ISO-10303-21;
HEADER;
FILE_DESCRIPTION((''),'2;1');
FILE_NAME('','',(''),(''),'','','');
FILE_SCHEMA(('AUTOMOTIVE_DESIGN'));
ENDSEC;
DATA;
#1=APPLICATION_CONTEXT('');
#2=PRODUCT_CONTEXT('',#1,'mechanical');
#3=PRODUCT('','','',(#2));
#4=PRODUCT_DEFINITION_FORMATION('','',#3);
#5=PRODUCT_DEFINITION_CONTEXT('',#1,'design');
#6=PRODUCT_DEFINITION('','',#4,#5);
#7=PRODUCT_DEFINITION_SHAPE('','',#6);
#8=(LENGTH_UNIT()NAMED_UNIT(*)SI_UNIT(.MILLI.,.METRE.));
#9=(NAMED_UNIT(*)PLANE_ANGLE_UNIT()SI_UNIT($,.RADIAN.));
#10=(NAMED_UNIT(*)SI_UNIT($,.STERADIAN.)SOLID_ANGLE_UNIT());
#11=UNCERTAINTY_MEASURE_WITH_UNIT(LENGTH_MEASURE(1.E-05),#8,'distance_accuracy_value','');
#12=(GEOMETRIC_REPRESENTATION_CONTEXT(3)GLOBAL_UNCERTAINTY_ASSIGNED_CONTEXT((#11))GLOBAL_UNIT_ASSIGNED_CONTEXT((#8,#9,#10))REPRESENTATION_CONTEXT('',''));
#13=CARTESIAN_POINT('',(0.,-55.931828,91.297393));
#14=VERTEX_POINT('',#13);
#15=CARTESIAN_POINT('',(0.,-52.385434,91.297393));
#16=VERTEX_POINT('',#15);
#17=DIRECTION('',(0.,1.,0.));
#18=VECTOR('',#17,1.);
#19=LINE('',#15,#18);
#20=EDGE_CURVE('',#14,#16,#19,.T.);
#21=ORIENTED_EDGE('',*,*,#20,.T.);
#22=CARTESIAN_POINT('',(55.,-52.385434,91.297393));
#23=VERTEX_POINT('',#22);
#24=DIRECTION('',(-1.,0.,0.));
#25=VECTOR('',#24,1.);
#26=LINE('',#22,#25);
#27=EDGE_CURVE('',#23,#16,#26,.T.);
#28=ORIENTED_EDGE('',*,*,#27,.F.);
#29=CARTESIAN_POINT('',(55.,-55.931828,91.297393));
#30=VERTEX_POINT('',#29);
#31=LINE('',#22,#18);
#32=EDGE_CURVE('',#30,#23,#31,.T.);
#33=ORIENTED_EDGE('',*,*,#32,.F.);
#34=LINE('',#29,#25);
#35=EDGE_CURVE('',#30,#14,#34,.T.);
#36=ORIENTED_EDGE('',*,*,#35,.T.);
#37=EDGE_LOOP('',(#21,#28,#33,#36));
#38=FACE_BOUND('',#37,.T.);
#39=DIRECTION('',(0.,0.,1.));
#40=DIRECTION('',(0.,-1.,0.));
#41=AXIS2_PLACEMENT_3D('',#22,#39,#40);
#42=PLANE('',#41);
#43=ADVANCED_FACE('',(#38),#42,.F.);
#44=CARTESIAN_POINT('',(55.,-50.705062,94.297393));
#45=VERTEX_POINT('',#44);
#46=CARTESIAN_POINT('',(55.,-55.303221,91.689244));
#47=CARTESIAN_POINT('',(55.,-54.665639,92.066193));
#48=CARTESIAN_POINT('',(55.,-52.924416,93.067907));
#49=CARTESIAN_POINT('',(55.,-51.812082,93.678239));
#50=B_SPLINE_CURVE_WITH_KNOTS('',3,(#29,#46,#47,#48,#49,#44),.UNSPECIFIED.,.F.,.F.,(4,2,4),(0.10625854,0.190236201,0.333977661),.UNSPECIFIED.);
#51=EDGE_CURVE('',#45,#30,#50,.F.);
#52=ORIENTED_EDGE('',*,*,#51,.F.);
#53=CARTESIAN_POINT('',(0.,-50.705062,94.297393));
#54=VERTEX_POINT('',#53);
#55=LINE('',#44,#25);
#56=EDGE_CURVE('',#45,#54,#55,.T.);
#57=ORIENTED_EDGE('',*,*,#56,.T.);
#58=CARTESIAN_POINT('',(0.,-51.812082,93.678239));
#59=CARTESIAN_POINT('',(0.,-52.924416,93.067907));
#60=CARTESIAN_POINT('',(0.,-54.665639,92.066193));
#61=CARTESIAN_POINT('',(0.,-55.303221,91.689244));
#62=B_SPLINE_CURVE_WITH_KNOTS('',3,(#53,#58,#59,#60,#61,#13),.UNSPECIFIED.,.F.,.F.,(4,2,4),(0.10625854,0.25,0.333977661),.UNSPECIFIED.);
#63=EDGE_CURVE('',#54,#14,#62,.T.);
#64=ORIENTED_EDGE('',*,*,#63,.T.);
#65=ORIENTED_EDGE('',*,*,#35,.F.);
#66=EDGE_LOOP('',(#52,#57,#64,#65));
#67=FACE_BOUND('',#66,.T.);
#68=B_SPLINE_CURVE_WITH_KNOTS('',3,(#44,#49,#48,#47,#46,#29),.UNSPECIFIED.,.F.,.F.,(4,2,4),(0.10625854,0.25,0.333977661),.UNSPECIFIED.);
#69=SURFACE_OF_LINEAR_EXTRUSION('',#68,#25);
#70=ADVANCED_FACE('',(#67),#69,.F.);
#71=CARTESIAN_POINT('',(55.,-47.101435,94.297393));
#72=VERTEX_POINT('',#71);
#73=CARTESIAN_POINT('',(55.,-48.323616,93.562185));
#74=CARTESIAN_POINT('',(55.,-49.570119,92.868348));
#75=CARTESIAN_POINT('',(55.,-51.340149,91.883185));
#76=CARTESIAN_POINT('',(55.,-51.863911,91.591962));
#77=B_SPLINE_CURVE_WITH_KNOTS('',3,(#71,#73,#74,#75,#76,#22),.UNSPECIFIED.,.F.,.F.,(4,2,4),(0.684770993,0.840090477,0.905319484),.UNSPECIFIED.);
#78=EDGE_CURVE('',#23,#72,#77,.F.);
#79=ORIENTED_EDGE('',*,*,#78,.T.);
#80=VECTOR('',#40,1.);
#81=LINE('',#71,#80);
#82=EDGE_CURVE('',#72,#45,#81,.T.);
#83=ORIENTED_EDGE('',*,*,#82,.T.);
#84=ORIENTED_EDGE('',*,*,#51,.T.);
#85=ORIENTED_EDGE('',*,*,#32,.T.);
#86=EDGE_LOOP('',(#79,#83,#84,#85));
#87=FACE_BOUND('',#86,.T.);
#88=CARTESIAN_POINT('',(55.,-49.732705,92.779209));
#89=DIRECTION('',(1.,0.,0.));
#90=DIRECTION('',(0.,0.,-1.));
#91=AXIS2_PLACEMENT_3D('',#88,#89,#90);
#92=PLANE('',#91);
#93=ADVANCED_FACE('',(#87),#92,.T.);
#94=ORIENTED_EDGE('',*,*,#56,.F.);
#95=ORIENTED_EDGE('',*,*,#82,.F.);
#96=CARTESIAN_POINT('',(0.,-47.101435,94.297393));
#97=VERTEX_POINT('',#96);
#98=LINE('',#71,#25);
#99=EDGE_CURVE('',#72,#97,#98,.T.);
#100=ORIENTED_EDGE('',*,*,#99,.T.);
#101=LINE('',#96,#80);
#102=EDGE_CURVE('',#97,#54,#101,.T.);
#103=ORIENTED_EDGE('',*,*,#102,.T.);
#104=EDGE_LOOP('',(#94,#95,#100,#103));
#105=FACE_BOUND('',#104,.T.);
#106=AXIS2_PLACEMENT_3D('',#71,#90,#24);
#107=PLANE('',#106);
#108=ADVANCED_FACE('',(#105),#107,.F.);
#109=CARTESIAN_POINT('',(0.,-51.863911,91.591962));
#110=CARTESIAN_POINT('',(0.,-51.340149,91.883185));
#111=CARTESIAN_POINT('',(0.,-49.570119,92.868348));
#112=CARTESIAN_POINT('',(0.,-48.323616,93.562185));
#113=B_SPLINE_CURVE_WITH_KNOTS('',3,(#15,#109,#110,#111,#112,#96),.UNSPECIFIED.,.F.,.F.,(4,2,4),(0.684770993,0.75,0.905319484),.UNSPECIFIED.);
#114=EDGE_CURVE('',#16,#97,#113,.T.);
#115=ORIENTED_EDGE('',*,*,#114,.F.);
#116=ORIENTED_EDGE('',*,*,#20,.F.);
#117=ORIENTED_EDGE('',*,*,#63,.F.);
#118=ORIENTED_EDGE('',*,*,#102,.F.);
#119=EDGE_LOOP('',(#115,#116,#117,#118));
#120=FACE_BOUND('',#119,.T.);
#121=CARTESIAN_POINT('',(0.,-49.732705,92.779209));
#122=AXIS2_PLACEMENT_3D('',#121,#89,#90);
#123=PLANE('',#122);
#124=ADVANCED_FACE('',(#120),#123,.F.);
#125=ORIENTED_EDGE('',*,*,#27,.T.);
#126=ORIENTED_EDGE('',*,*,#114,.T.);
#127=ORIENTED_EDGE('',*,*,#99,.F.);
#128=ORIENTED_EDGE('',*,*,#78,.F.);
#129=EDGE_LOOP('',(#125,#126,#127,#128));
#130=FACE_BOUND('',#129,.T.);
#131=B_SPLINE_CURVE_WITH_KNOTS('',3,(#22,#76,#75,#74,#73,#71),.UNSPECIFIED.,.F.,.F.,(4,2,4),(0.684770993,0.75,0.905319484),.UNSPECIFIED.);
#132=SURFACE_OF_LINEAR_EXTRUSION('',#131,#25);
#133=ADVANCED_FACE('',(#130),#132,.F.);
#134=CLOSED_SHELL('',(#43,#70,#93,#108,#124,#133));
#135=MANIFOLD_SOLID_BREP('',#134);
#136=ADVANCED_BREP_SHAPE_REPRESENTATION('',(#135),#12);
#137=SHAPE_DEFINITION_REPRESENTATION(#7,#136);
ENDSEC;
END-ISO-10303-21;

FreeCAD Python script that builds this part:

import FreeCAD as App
import Part
import Sketcher
from FreeCAD import Vector

doc = App.newDocument("Part")
body = doc.addObject("PartDesign::Body", "Body")

# Sketch on YZ plane
sketch1 = doc.addObject("Sketcher::SketchObject", "Sketch")
body.addObject(sketch1)
sketch1.AttachmentSupport = (doc.YZ_Plane, [""])
sketch1.MapMode = "FlatFace"
sketch1.addGeometry([
    Part.LineSegment(Vector(-47.101435, 94.297393, 0), Vector(-50.705062, 94.297393, 0)),
    Part.BSplineCurve([Vector(-50.705062, 94.297393, 0), Vector(-51.812082, 93.678239, 0), Vector(-52.924416, 93.067907, 0), Vector(-54.665639, 92.066193, 0), Vector(-55.303221, 91.689244, 0), Vector(-55.931828, 91.297393, 0)], [4, 2, 4], [0.10625854, 0.25, 0.333977661], False, 3, [1, 1, 1, 1, 1, 1], False),
    Part.LineSegment(Vector(-55.931828, 91.297393, 0), Vector(-52.385434, 91.297393, 0)),
    Part.BSplineCurve([Vector(-52.385434, 91.297393, 0), Vector(-51.863911, 91.591962, 0), Vector(-51.340149, 91.883185, 0), Vector(-49.570119, 92.868348, 0), Vector(-48.323616, 93.562185, 0), Vector(-47.101435, 94.297393, 0)], [4, 2, 4], [0.684770993, 0.75, 0.905319484], False, 3, [1, 1, 1, 1, 1, 1], False),
], False)
sketch1.addConstraint([
    Sketcher.Constraint("Block", 1),
    Sketcher.Constraint("Block", 3),
    Sketcher.Constraint("Coincident", 0, 2, 1, 1),
    Sketcher.Constraint("Coincident", 1, 2, 2, 1),
    Sketcher.Constraint("Coincident", 2, 2, 3, 1),
    Sketcher.Constraint("Coincident", 3, 2, 0, 1),
])
pad1 = doc.addObject("PartDesign::Pad", "Pad")
body.addObject(pad1)
pad1.Profile = sketch1
pad1.Length = 55

doc.recompute()
